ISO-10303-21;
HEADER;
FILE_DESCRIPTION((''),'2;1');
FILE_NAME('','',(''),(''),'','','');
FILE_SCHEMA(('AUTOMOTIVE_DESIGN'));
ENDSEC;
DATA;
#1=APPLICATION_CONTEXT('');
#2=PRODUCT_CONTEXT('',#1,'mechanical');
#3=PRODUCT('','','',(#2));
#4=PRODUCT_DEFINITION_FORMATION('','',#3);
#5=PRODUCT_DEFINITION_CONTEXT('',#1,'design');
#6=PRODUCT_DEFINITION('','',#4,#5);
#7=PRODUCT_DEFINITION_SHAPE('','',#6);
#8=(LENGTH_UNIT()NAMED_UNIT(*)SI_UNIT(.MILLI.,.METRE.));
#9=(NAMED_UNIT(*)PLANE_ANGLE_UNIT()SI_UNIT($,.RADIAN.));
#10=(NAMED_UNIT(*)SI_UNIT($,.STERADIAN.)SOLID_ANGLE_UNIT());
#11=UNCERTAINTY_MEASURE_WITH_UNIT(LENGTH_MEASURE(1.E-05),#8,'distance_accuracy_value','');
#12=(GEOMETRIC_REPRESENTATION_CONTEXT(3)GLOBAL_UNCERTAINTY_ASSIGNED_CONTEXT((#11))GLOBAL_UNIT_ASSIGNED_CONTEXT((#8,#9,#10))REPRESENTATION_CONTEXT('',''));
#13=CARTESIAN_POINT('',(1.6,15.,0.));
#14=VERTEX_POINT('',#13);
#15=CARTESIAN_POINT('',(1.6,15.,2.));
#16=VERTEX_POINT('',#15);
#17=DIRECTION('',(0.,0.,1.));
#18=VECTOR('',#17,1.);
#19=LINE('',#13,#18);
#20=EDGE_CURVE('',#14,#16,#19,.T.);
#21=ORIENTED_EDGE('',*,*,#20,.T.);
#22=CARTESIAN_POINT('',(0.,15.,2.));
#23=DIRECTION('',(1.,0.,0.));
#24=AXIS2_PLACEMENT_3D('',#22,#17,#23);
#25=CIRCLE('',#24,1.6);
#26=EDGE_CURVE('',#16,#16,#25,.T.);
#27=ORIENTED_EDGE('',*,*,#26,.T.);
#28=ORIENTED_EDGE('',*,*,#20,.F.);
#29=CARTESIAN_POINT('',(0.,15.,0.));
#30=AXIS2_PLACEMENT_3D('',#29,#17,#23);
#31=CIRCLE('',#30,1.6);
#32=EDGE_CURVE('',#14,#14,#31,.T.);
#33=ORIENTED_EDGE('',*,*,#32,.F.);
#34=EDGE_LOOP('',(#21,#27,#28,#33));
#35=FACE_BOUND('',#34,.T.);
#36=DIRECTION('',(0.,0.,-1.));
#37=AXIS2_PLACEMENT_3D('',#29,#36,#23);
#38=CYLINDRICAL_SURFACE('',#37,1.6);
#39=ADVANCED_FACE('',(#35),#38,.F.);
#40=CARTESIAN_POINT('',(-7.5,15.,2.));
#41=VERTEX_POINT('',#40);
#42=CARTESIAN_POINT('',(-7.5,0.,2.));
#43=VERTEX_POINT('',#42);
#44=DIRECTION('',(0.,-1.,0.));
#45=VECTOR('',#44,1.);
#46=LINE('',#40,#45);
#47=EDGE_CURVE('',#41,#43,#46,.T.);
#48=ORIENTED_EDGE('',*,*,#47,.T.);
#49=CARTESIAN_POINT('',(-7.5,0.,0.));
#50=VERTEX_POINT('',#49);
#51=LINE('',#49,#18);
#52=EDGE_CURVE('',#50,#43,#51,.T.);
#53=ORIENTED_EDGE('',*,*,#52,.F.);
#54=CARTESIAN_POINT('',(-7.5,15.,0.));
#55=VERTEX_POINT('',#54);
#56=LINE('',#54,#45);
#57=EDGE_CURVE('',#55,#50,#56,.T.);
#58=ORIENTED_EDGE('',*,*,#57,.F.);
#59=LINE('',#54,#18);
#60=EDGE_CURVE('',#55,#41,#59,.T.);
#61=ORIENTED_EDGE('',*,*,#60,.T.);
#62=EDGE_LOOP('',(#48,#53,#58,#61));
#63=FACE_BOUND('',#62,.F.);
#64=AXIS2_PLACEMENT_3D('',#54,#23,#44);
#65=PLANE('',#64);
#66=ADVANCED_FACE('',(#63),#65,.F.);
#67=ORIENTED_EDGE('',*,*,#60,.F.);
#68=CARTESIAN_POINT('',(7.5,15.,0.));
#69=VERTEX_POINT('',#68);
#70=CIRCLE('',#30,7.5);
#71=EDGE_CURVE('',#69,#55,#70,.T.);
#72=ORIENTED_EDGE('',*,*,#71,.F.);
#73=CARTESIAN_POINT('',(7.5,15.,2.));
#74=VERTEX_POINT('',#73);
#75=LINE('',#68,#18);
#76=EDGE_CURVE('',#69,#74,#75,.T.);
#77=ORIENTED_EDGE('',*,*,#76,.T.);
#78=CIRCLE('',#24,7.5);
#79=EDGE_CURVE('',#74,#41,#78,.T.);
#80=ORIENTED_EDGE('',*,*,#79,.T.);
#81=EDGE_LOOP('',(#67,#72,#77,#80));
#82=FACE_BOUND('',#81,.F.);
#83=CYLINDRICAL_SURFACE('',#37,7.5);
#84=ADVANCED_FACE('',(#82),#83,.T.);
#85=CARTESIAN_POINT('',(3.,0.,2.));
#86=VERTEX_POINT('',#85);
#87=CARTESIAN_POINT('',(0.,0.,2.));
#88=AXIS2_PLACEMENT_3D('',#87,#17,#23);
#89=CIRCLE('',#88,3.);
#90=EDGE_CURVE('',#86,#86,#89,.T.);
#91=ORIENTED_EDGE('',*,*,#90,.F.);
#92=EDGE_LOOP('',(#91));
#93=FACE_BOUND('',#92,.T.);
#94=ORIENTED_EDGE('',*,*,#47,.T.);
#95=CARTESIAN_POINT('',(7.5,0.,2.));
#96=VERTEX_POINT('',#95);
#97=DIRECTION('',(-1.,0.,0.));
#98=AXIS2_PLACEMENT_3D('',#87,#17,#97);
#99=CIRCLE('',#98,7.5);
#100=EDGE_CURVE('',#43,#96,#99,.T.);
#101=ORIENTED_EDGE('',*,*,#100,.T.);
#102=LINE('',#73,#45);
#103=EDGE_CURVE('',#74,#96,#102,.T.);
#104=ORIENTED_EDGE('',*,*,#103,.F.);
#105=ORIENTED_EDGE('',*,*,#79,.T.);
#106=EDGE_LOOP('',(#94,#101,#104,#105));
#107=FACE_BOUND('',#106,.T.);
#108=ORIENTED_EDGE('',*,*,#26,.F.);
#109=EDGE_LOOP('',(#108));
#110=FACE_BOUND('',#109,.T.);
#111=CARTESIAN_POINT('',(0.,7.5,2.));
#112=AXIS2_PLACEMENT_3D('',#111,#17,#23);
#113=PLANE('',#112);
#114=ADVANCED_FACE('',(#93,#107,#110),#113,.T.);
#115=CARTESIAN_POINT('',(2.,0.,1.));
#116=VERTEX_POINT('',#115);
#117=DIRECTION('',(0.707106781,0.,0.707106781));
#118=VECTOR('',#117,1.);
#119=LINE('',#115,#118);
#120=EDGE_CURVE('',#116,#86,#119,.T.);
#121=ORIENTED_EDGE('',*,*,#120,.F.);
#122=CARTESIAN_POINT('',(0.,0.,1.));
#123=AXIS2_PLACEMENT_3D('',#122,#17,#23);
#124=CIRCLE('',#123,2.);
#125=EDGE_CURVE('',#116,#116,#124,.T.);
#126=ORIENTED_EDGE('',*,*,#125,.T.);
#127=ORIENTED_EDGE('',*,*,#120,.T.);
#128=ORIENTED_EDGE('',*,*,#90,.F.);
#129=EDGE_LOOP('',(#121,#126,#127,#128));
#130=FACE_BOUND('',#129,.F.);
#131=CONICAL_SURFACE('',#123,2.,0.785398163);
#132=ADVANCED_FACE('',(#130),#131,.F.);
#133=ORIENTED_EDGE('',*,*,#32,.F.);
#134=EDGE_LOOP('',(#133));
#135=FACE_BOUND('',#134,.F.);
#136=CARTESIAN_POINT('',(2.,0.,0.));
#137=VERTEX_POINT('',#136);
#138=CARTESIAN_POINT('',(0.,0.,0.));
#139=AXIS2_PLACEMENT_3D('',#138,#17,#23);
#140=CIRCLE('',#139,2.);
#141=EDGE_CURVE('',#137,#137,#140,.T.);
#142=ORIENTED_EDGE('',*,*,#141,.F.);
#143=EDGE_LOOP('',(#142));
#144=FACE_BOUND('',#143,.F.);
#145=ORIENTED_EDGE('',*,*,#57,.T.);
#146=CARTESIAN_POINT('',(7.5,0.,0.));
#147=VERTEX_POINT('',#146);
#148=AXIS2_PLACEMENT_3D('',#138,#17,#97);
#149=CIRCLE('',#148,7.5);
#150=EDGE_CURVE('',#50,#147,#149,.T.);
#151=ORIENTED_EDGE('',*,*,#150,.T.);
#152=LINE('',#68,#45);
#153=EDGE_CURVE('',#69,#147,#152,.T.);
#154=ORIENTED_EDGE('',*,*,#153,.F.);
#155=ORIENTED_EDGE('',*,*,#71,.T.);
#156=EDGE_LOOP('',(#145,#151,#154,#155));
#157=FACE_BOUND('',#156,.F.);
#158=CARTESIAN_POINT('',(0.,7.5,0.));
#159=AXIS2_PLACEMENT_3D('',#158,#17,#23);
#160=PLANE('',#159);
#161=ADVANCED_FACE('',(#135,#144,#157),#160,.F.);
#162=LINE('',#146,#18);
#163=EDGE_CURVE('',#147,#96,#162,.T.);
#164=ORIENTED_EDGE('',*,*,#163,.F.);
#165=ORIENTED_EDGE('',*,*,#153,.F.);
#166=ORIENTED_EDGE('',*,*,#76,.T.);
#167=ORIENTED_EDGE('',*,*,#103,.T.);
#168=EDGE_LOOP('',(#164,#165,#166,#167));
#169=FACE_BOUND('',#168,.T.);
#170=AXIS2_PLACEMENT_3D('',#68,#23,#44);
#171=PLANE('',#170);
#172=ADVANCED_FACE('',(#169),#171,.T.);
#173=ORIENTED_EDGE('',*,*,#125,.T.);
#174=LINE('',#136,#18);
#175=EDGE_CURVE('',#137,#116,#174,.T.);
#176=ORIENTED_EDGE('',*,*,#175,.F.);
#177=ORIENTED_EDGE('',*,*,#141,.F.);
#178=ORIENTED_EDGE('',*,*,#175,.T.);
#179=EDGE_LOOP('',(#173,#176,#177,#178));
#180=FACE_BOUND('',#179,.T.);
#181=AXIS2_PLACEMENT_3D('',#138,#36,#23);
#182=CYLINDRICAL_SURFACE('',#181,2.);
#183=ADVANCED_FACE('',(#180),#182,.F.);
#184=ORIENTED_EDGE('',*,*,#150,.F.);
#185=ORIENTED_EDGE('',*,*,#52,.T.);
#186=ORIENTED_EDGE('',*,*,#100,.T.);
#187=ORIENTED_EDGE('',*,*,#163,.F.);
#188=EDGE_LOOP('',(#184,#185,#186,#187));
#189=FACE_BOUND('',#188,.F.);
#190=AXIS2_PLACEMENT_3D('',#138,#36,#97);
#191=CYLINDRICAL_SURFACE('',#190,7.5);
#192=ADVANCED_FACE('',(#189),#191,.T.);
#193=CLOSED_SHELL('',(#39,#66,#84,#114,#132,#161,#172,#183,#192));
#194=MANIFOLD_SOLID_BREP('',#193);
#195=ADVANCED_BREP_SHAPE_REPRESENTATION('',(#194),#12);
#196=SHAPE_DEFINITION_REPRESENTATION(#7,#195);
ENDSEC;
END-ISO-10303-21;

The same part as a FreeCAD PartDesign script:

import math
import FreeCAD as App
import Part
import Sketcher
Q = App.Units.Quantity


def edges_at(feature, points):
    """Names of the edges that pass closest to the given points."""
    edges = feature.Shape.Edges
    near = lambda p: min(range(len(edges)), key=lambda i: edges[i].distToShape(Part.Vertex(*p))[0])
    return sorted({f"Edge{near(p) + 1}" for p in points})

doc = App.newDocument("Part")
params = doc.addObject("Spreadsheet::Sheet", "Params")
for row, (alias, value) in enumerate([
    ("sketch1_diameter", "4 mm"),
    ("sketch1_diameter2", "3.2 mm"),
    ("sketch1_radius", "7.5 mm"),
    ("sketch1_height", "15 mm"),
    ("pad1_length", "2 mm"),
    ("chamfer_size", "1 mm"),
], start=1):
    params.set(f"A{row}", alias)
    params.set(f"B{row}", "=" + value)
    params.setAlias(f"B{row}", alias)

body = doc.addObject("PartDesign::Body", "Body")

# Sketch on XY plane
sketch1 = doc.addObject("Sketcher::SketchObject", "Sketch")
body.addObject(sketch1)
sketch1.AttachmentSupport = (doc.XY_Plane, [""])
sketch1.MapMode = "FlatFace"
sketch1.addGeometry(Part.ArcOfCircle(Part.Circle(App.Vector(0, 15, 0), App.Vector(0, 0, 1), 7.5), math.radians(0), math.radians(180)), False)
sketch1.addGeometry(Part.LineSegment(App.Vector(-7.5, 15, 0), App.Vector(-7.5, 0, 0)), False)
sketch1.addGeometry(Part.ArcOfCircle(Part.Circle(App.Vector(0, 0, 0), App.Vector(0, 0, 1), 7.5), math.radians(180), math.radians(360)), False)
sketch1.addGeometry(Part.LineSegment(App.Vector(7.5, 0, 0), App.Vector(7.5, 15, 0)), False)
sketch1.addGeometry(Part.Circle(App.Vector(0, 0, 0), App.Vector(0, 0, 1), 2), False)
sketch1.addGeometry(Part.Circle(App.Vector(0, 15, 0), App.Vector(0, 0, 1), 1.6), False)
sketch1.addConstraint(Sketcher.Constraint("Tangent", 0, 2, 1, 1))
sketch1.addConstraint(Sketcher.Constraint("Tangent", 1, 2, 2, 1))
sketch1.addConstraint(Sketcher.Constraint("Tangent", 2, 2, 3, 1))
sketch1.addConstraint(Sketcher.Constraint("Tangent", 3, 2, 0, 1))
sketch1.addConstraint(Sketcher.Constraint("Vertical", 1))
sketch1.addConstraint(Sketcher.Constraint("Vertical", 3))
sketch1.addConstraint(Sketcher.Constraint("Coincident", 2, 3, -1, 1))
sketch1.addConstraint(Sketcher.Constraint("Coincident", 4, 3, -1, 1))
sketch1.addConstraint(Sketcher.Constraint("Coincident", 5, 3, 0, 3))
sketch1.addConstraint(Sketcher.Constraint("Diameter", 4, Q("4 mm")))
sketch1.addConstraint(Sketcher.Constraint("Diameter", 5, Q("3.2 mm")))
sketch1.addConstraint(Sketcher.Constraint("Radius", 0, Q("7.5 mm")))
sketch1.addConstraint(Sketcher.Constraint("DistanceY", 1, 2, 1, 1, Q("15 mm")))
sketch1.setExpression("Constraints[9]", "Params.sketch1_diameter")
sketch1.setExpression("Constraints[10]", "Params.sketch1_diameter2")
sketch1.setExpression("Constraints[11]", "Params.sketch1_radius")
sketch1.setExpression("Constraints[12]", "Params.sketch1_height")
pad1 = doc.addObject("PartDesign::Pad", "Pad")
body.addObject(pad1)
pad1.Profile = sketch1
pad1.setExpression("Length", "Params.pad1_length")
doc.recompute()

chamfer = doc.addObject("PartDesign::Chamfer", "Chamfer")
body.addObject(chamfer)
chamfer.Base = (pad1, edges_at(pad1, [(-2, 0, 2)]))
chamfer.setExpression("Size", "Params.chamfer_size")

doc.recompute()
